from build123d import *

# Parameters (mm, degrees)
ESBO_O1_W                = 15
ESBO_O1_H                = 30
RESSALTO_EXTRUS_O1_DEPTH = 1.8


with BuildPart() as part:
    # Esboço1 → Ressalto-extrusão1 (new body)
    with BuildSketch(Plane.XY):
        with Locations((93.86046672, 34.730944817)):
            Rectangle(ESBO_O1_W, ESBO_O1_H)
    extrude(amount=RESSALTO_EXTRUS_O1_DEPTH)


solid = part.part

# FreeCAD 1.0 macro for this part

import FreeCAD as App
import Part
import Sketcher
from FreeCAD import Vector
Q = App.Units.Quantity


def add_polygon(sketch, points):
    """Adds a closed chain of lines whose ends are joined by coincident constraints."""
    first, n = sketch.GeometryCount, len(points)
    for a, b in zip(points, points[1:] + points[:1]):
        sketch.addGeometry(Part.LineSegment(App.Vector(*a, 0), App.Vector(*b, 0)), False)
    for i in range(n):
        sketch.addConstraint(Sketcher.Constraint("Coincident", first + i, 2, first + (i + 1) % n, 1))

doc = App.newDocument("Part")
body = doc.addObject("PartDesign::Body", "Body")

# Sketch on XY plane
sketch1 = body.newObject("Sketcher::SketchObject", "Sketch")
sketch1.AttachmentSupport = (doc.getObject("XY_Plane"), [""])
sketch1.MapMode = "FlatFace"
add_polygon(sketch1, [(86, 50), (86, 20), (101, 20), (101, 50)])  # lines 0-3
sketch1.addConstraint(Sketcher.Constraint("Vertical", 0))
sketch1.addConstraint(Sketcher.Constraint("Horizontal", 1))
sketch1.addConstraint(Sketcher.Constraint("Vertical", 2))
sketch1.addConstraint(Sketcher.Constraint("Horizontal", 3))
sketch1.addConstraint(Sketcher.Constraint("DistanceX", 1, 1, 1, 2, Q("15 mm")))
sketch1.addConstraint(Sketcher.Constraint("DistanceY", 0, 2, 0, 1, Q("30 mm")))
sketch1.addConstraint(Sketcher.Constraint("DistanceX", -1, 1, 0, 2, Q("86.360467 mm")))
sketch1.addConstraint(Sketcher.Constraint("DistanceY", -1, 1, 0, 2, Q("19.730945 mm")))
pad1 = body.newObject("PartDesign::Pad", "Pad")
pad1.Profile = sketch1
pad1.Length = 1.8

doc.recompute()
